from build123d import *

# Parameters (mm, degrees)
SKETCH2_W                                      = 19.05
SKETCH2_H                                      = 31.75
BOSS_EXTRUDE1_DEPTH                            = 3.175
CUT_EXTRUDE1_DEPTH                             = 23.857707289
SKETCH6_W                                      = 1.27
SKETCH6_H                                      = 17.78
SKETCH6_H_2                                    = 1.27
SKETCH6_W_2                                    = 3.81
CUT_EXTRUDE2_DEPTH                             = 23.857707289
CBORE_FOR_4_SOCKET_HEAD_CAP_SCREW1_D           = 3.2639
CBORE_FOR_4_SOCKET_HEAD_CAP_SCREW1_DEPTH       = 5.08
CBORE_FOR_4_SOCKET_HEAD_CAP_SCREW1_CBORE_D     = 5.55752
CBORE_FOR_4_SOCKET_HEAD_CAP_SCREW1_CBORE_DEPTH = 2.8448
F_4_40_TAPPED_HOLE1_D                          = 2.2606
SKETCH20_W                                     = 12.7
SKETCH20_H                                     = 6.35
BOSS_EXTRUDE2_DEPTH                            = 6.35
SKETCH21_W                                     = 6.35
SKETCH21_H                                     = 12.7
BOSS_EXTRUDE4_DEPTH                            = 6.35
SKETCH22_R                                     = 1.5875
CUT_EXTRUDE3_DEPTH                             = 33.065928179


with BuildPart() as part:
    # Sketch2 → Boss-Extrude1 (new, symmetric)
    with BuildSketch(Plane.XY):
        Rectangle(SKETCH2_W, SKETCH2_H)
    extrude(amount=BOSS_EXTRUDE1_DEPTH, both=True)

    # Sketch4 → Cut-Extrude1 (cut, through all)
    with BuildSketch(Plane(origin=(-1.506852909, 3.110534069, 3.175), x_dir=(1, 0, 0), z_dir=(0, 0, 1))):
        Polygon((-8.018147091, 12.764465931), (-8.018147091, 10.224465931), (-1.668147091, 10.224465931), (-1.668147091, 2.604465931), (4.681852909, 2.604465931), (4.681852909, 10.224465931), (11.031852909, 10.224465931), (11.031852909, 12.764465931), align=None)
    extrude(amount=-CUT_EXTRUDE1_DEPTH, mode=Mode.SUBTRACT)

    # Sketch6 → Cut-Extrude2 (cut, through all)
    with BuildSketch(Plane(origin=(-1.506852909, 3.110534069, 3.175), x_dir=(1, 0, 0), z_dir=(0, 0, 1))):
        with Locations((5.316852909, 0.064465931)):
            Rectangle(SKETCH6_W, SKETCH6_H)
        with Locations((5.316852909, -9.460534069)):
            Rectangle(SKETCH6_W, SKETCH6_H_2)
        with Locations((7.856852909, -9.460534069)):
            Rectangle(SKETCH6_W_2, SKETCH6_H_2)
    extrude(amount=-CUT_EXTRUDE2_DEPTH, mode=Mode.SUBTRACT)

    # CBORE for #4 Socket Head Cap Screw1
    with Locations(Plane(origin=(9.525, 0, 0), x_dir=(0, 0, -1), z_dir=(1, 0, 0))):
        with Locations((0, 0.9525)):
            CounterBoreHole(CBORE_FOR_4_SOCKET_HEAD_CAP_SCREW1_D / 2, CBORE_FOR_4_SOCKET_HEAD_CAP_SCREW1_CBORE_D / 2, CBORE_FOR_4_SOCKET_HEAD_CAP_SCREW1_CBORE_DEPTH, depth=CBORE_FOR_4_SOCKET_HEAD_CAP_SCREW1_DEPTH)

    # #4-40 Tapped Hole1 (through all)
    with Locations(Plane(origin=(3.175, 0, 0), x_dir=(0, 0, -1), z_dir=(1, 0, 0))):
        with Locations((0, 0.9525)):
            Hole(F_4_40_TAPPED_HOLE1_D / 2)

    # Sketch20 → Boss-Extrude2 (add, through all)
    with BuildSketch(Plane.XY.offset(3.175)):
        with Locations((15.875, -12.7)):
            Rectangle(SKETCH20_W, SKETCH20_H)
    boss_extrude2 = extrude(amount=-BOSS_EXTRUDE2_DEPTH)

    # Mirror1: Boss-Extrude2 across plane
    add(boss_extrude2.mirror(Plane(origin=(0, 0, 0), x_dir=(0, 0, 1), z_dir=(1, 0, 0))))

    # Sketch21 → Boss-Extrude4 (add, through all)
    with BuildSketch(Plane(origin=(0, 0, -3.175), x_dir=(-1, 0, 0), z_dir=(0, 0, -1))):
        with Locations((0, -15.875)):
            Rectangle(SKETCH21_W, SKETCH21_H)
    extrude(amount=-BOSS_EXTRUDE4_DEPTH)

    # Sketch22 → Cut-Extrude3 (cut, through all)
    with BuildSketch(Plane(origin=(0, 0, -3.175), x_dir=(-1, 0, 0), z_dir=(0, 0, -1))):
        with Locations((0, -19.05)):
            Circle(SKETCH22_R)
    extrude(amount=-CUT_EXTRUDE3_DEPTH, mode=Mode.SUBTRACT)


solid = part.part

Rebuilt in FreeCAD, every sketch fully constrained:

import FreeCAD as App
import Part
import Sketcher
Q = App.Units.Quantity

doc = App.newDocument("Part")
body = doc.addObject("PartDesign::Body", "Body")

sketch1 = doc.addObject("Sketcher::SketchObject", "Sketch")
body.addObject(sketch1)
sketch1.AttachmentSupport = (doc.XY_Plane, [""])
sketch1.MapMode = "FlatFace"
sketch1.addGeometry(Part.LineSegment(App.Vector(-9.525, 15.875, 0), App.Vector(-9.525, -15.875, 0)), False)
sketch1.addGeometry(Part.LineSegment(App.Vector(-9.525, -15.875, 0), App.Vector(9.525, -15.875, 0)), False)
sketch1.addGeometry(Part.LineSegment(App.Vector(9.525, -15.875, 0), App.Vector(9.525, 15.875, 0)), False)
sketch1.addGeometry(Part.LineSegment(App.Vector(9.525, 15.875, 0), App.Vector(-9.525, 15.875, 0)), False)
sketch1.addConstraint(Sketcher.Constraint("Coincident", 0, 2, 1, 1))
sketch1.addConstraint(Sketcher.Constraint("Coincident", 1, 2, 2, 1))
sketch1.addConstraint(Sketcher.Constraint("Coincident", 2, 2, 3, 1))
sketch1.addConstraint(Sketcher.Constraint("Coincident", 3, 2, 0, 1))
sketch1.addConstraint(Sketcher.Constraint("Vertical", 0))
sketch1.addConstraint(Sketcher.Constraint("Horizontal", 1))
sketch1.addConstraint(Sketcher.Constraint("Vertical", 2))
sketch1.addConstraint(Sketcher.Constraint("Horizontal", 3))
sketch1.addConstraint(Sketcher.Constraint("Symmetric", 0, 2, 2, 2, -1, 1))
sketch1.addConstraint(Sketcher.Constraint("DistanceX", 1, 1, 1, 2, Q("0.75 in")))
sketch1.addConstraint(Sketcher.Constraint("DistanceY", 0, 2, 0, 1, Q("1.25 in")))
pad1 = doc.addObject("PartDesign::Pad", "Pad")
body.addObject(pad1)
pad1.Profile = sketch1
pad1.Length = Q("0.25 in")
pad1.Midplane = True

sketch2 = doc.addObject("Sketcher::SketchObject", "Sketch001")
body.addObject(sketch2)
sketch2.AttachmentSupport = (doc.XY_Plane, [""])
sketch2.MapMode = "FlatFace"
sketch2.AttachmentOffset = App.Placement(App.Vector(0, 0, 0.125 * 25.4), App.Rotation())
sketch2.addGeometry(Part.LineSegment(App.Vector(-9.525, 15.875, 0), App.Vector(-9.525, 13.335, 0)), False)
sketch2.addGeometry(Part.LineSegment(App.Vector(-9.525, 13.335, 0), App.Vector(-3.175, 13.335, 0)), False)
sketch2.addGeometry(Part.LineSegment(App.Vector(-3.175, 13.335, 0), App.Vector(-3.175, 5.715, 0)), False)
sketch2.addGeometry(Part.LineSegment(App.Vector(-3.175, 5.715, 0), App.Vector(3.175, 5.715, 0)), False)
sketch2.addGeometry(Part.LineSegment(App.Vector(3.175, 5.715, 0), App.Vector(3.175, 13.335, 0)), False)
sketch2.addGeometry(Part.LineSegment(App.Vector(3.175, 13.335, 0), App.Vector(9.525, 13.335, 0)), False)
sketch2.addGeometry(Part.LineSegment(App.Vector(9.525, 13.335, 0), App.Vector(9.525, 15.875, 0)), False)
sketch2.addGeometry(Part.LineSegment(App.Vector(9.525, 15.875, 0), App.Vector(-9.525, 15.875, 0)), False)
sketch2.addConstraint(Sketcher.Constraint("Coincident", 0, 2, 1, 1))
sketch2.addConstraint(Sketcher.Constraint("Coincident", 1, 2, 2, 1))
sketch2.addConstraint(Sketcher.Constraint("Coincident", 2, 2, 3, 1))
sketch2.addConstraint(Sketcher.Constraint("Coincident", 3, 2, 4, 1))
sketch2.addConstraint(Sketcher.Constraint("Coincident", 4, 2, 5, 1))
sketch2.addConstraint(Sketcher.Constraint("Coincident", 5, 2, 6, 1))
sketch2.addConstraint(Sketcher.Constraint("Coincident", 6, 2, 7, 1))
sketch2.addConstraint(Sketcher.Constraint("Coincident", 7, 2, 0, 1))
sketch2.addConstraint(Sketcher.Constraint("Vertical", 0))
sketch2.addConstraint(Sketcher.Constraint("Horizontal", 1))
sketch2.addConstraint(Sketcher.Constraint("Vertical", 2))
sketch2.addConstraint(Sketcher.Constraint("Horizontal", 3))
sketch2.addConstraint(Sketcher.Constraint("Vertical", 4))
sketch2.addConstraint(Sketcher.Constraint("Horizontal", 5))
sketch2.addConstraint(Sketcher.Constraint("Vertical", 6))
sketch2.addConstraint(Sketcher.Constraint("Horizontal", 7))
sketch2.addConstraint(Sketcher.Constraint("Symmetric", 1, 2, 4, 2, -2))
sketch2.addConstraint(Sketcher.Constraint("Equal", 1, 3))
sketch2.addConstraint(Sketcher.Constraint("Equal", 3, 5))
sketch2.addConstraint(Sketcher.Constraint("DistanceY", 0, 2, 0, 1, Q("0.1 in")))
sketch2.addConstraint(Sketcher.Constraint("DistanceY", 2, 2, 2, 1, Q("0.3 in")))
sketch2.addConstraint(Sketcher.Constraint("DistanceX", 1, 1, 1, 2, Q("0.25 in")))
sketch2.addConstraint(Sketcher.Constraint("DistanceY", -1, 1, 0, 2, Q("0.525 in")))
pocket1 = doc.addObject("PartDesign::Pocket", "Pocket")
body.addObject(pocket1)
pocket1.Profile = sketch2
pocket1.Type = "ThroughAll"

sketch3 = doc.addObject("Sketcher::SketchObject", "Sketch002")
body.addObject(sketch3)
sketch3.AttachmentSupport = (doc.XY_Plane, [""])
sketch3.MapMode = "FlatFace"
sketch3.AttachmentOffset = App.Placement(App.Vector(0, 0, 0.125 * 25.4), App.Rotation())
sketch3.addGeometry(Part.LineSegment(App.Vector(3.175, 12.065, 0), App.Vector(3.175, -6.985, 0)), False)
sketch3.addGeometry(Part.LineSegment(App.Vector(3.175, -6.985, 0), App.Vector(8.255, -6.985, 0)), False)
sketch3.addGeometry(Part.LineSegment(App.Vector(8.255, -6.985, 0), App.Vector(8.255, -5.715, 0)), False)
sketch3.addGeometry(Part.LineSegment(App.Vector(8.255, -5.715, 0), App.Vector(4.445, -5.715, 0)), False)
sketch3.addGeometry(Part.LineSegment(App.Vector(4.445, -5.715, 0), App.Vector(4.445, 12.065, 0)), False)
sketch3.addGeometry(Part.LineSegment(App.Vector(4.445, 12.065, 0), App.Vector(3.175, 12.065, 0)), False)
sketch3.addConstraint(Sketcher.Constraint("Coincident", 0, 2, 1, 1))
sketch3.addConstraint(Sketcher.Constraint("Coincident", 1, 2, 2, 1))
sketch3.addConstraint(Sketcher.Constraint("Coincident", 2, 2, 3, 1))
sketch3.addConstraint(Sketcher.Constraint("Coincident", 3, 2, 4, 1))
sketch3.addConstraint(Sketcher.Constraint("Coincident", 4, 2, 5, 1))
sketch3.addConstraint(Sketcher.Constraint("Coincident", 5, 2, 0, 1))
sketch3.addConstraint(Sketcher.Constraint("Vertical", 0))
sketch3.addConstraint(Sketcher.Constraint("Horizontal", 1))
sketch3.addConstraint(Sketcher.Constraint("Vertical", 2))
sketch3.addConstraint(Sketcher.Constraint("Horizontal", 3))
sketch3.addConstraint(Sketcher.Constraint("Vertical", 4))
sketch3.addConstraint(Sketcher.Constraint("Horizontal", 5))
sketch3.addConstraint(Sketcher.Constraint("Equal", 5, 2))
sketch3.addConstraint(Sketcher.Constraint("DistanceX", 1, 1, 1, 2, Q("0.2 in")))
sketch3.addConstraint(Sketcher.Constraint("DistanceY", 4, 1, 4, 2, Q("0.7 in")))
sketch3.addConstraint(Sketcher.Constraint("DistanceX", 3, 2, 3, 1, Q("0.15 in")))
sketch3.addConstraint(Sketcher.Constraint("DistanceX", -1, 1, 0, 2, Q("0.125 in")))
sketch3.addConstraint(Sketcher.Constraint("DistanceY", 0, 2, -1, 1, Q("0.275 in")))
pocket2 = doc.addObject("PartDesign::Pocket", "Pocket001")
body.addObject(pocket2)
pocket2.Profile = sketch3
pocket2.Type = "ThroughAll"

sketch4 = doc.addObject("Sketcher::SketchObject", "Sketch003")
body.addObject(sketch4)
sketch4.AttachmentSupport = (doc.YZ_Plane, [""])
sketch4.MapMode = "FlatFace"
sketch4.AttachmentOffset = App.Placement(App.Vector(0, 0, 0.375 * 25.4), App.Rotation())
sketch4.addGeometry(Part.Circle(App.Vector(0.9525, 0, 0), App.Vector(0, 0, 1), 1.63195), False)
sketch4.addConstraint(Sketcher.Constraint("PointOnObject", 0, 3, -1))
sketch4.addConstraint(Sketcher.Constraint("Diameter", 0, Q("0.1285 in")))
sketch4.addConstraint(Sketcher.Constraint("DistanceX", -1, 1, 0, 3, Q("0.0375 in")))
doc.recompute()
hole = doc.addObject("PartDesign::Hole", "Hole")
body.addObject(hole)
hole.Profile = sketch4
hole.ThreadType = "None"
hole.Diameter = Q("0.1285 in")
hole.DepthType = "Dimension"
hole.Depth = Q("0.2 in")
hole.DrillPoint = "Flat"
hole.HoleCutType = "Counterbore"
hole.HoleCutDiameter = Q("0.2188 in")
hole.HoleCutDepth = Q("0.112 in")

sketch5 = doc.addObject("Sketcher::SketchObject", "Sketch004")
body.addObject(sketch5)
sketch5.AttachmentSupport = (doc.YZ_Plane, [""])
sketch5.MapMode = "FlatFace"
sketch5.AttachmentOffset = App.Placement(App.Vector(0, 0, 0.125 * 25.4), App.Rotation())
sketch5.addGeometry(Part.Circle(App.Vector(0.9525, 0, 0), App.Vector(0, 0, 1), 1.1303), False)
sketch5.addConstraint(Sketcher.Constraint("PointOnObject", 0, 3, -1))
sketch5.addConstraint(Sketcher.Constraint("Diameter", 0, Q("0.089 in")))
sketch5.addConstraint(Sketcher.Constraint("DistanceX", -1, 1, 0, 3, Q("0.0375 in")))
doc.recompute()
hole2 = doc.addObject("PartDesign::Hole", "Hole001")
body.addObject(hole2)
hole2.Profile = sketch5
hole2.ThreadType = "None"
hole2.Diameter = Q("0.089 in")
hole2.DepthType = "ThroughAll"

sketch6 = doc.addObject("Sketcher::SketchObject", "Sketch005")
body.addObject(sketch6)
sketch6.AttachmentSupport = (doc.XY_Plane, [""])
sketch6.MapMode = "FlatFace"
sketch6.AttachmentOffset = App.Placement(App.Vector(0, 0, 0.125 * 25.4), App.Rotation())
sketch6.addGeometry(Part.LineSegment(App.Vector(9.525, -9.525, 0), App.Vector(9.525, -15.875, 0)), False)
sketch6.addGeometry(Part.LineSegment(App.Vector(9.525, -15.875, 0), App.Vector(22.225, -15.875, 0)), False)
sketch6.addGeometry(Part.LineSegment(App.Vector(22.225, -15.875, 0), App.Vector(22.225, -9.525, 0)), False)
sketch6.addGeometry(Part.LineSegment(App.Vector(22.225, -9.525, 0), App.Vector(9.525, -9.525, 0)), False)
sketch6.addConstraint(Sketcher.Constraint("Coincident", 0, 2, 1, 1))
sketch6.addConstraint(Sketcher.Constraint("Coincident", 1, 2, 2, 1))
sketch6.addConstraint(Sketcher.Constraint("Coincident", 2, 2, 3, 1))
sketch6.addConstraint(Sketcher.Constraint("Coincident", 3, 2, 0, 1))
sketch6.addConstraint(Sketcher.Constraint("Vertical", 0))
sketch6.addConstraint(Sketcher.Constraint("Horizontal", 1))
sketch6.addConstraint(Sketcher.Constraint("Vertical", 2))
sketch6.addConstraint(Sketcher.Constraint("Horizontal", 3))
sketch6.addConstraint(Sketcher.Constraint("DistanceX", 1, 1, 1, 2, Q("0.5 in")))
sketch6.addConstraint(Sketcher.Constraint("DistanceY", 0, 2, 0, 1, Q("0.25 in")))
sketch6.addConstraint(Sketcher.Constraint("DistanceX", -1, 1, 0, 2, Q("0.375 in")))
sketch6.addConstraint(Sketcher.Constraint("DistanceY", 0, 2, -1, 1, Q("0.625 in")))
pad2 = doc.addObject("PartDesign::Pad", "Pad001")
body.addObject(pad2)
pad2.Profile = sketch6
pad2.Length = Q("0.25 in")
pad2.Reversed = True
doc.recompute()

mirrored = doc.addObject("PartDesign::Mirrored", "Mirrored")
body.addObject(mirrored)
mirrored.Originals = [pad2]
mirrored.MirrorPlane = (doc.YZ_Plane, [""])
body.Tip = mirrored

sketch7 = doc.addObject("Sketcher::SketchObject", "Sketch006")
body.addObject(sketch7)
sketch7.AttachmentSupport = (doc.XY_Plane, [""])
sketch7.MapMode = "FlatFace"
sketch7.AttachmentOffset = App.Placement(App.Vector(0, 0, -0.125 * 25.4), App.Rotation())
sketch7.addGeometry(Part.LineSegment(App.Vector(3.175, -9.525, 0), App.Vector(3.175, -22.225, 0)), False)
sketch7.addGeometry(Part.LineSegment(App.Vector(3.175, -22.225, 0), App.Vector(-3.175, -22.225, 0)), False)
sketch7.addGeometry(Part.LineSegment(App.Vector(-3.175, -22.225, 0), App.Vector(-3.175, -9.525, 0)), False)
sketch7.addGeometry(Part.LineSegment(App.Vector(-3.175, -9.525, 0), App.Vector(3.175, -9.525, 0)), False)
sketch7.addConstraint(Sketcher.Constraint("Coincident", 0, 2, 1, 1))
sketch7.addConstraint(Sketcher.Constraint("Coincident", 1, 2, 2, 1))
sketch7.addConstraint(Sketcher.Constraint("Coincident", 2, 2, 3, 1))
sketch7.addConstraint(Sketcher.Constraint("Coincident", 3, 2, 0, 1))
sketch7.addConstraint(Sketcher.Constraint("Vertical", 0))
sketch7.addConstraint(Sketcher.Constraint("Horizontal", 1))
sketch7.addConstraint(Sketcher.Constraint("Vertical", 2))
sketch7.addConstraint(Sketcher.Constraint("Horizontal", 3))
sketch7.addConstraint(Sketcher.Constraint("DistanceY", 0, 2, 0, 1, Q("0.5 in")))
sketch7.addConstraint(Sketcher.Constraint("DistanceX", 1, 2, 1, 1, Q("0.25 in")))
sketch7.addConstraint(Sketcher.Constraint("DistanceX", -1, 1, 0, 2, Q("0.125 in")))
sketch7.addConstraint(Sketcher.Constraint("DistanceY", 0, 2, -1, 1, Q("0.875 in")))
pad3 = doc.addObject("PartDesign::Pad", "Pad002")
body.addObject(pad3)
pad3.Profile = sketch7
pad3.Type = "UpToLast"

sketch8 = doc.addObject("Sketcher::SketchObject", "Sketch007")
body.addObject(sketch8)
sketch8.AttachmentSupport = (doc.XY_Plane, [""])
sketch8.MapMode = "FlatFace"
sketch8.AttachmentOffset = App.Placement(App.Vector(0, 0, -0.125 * 25.4), App.Rotation())
sketch8.addGeometry(Part.Circle(App.Vector(0, -19.05, 0), App.Vector(0, 0, 1), 1.5875), False)
sketch8.addConstraint(Sketcher.Constraint("PointOnObject", 0, 3, -2))
sketch8.addConstraint(Sketcher.Constraint("Diameter", 0, Q("0.125 in")))
sketch8.addConstraint(Sketcher.Constraint("DistanceY", 0, 3, -1, 1, Q("0.75 in")))
pocket3 = doc.addObject("PartDesign::Pocket", "Pocket002")
body.addObject(pocket3)
pocket3.Profile = sketch8
pocket3.Type = "ThroughAll"
pocket3.Reversed = True

doc.recompute()
